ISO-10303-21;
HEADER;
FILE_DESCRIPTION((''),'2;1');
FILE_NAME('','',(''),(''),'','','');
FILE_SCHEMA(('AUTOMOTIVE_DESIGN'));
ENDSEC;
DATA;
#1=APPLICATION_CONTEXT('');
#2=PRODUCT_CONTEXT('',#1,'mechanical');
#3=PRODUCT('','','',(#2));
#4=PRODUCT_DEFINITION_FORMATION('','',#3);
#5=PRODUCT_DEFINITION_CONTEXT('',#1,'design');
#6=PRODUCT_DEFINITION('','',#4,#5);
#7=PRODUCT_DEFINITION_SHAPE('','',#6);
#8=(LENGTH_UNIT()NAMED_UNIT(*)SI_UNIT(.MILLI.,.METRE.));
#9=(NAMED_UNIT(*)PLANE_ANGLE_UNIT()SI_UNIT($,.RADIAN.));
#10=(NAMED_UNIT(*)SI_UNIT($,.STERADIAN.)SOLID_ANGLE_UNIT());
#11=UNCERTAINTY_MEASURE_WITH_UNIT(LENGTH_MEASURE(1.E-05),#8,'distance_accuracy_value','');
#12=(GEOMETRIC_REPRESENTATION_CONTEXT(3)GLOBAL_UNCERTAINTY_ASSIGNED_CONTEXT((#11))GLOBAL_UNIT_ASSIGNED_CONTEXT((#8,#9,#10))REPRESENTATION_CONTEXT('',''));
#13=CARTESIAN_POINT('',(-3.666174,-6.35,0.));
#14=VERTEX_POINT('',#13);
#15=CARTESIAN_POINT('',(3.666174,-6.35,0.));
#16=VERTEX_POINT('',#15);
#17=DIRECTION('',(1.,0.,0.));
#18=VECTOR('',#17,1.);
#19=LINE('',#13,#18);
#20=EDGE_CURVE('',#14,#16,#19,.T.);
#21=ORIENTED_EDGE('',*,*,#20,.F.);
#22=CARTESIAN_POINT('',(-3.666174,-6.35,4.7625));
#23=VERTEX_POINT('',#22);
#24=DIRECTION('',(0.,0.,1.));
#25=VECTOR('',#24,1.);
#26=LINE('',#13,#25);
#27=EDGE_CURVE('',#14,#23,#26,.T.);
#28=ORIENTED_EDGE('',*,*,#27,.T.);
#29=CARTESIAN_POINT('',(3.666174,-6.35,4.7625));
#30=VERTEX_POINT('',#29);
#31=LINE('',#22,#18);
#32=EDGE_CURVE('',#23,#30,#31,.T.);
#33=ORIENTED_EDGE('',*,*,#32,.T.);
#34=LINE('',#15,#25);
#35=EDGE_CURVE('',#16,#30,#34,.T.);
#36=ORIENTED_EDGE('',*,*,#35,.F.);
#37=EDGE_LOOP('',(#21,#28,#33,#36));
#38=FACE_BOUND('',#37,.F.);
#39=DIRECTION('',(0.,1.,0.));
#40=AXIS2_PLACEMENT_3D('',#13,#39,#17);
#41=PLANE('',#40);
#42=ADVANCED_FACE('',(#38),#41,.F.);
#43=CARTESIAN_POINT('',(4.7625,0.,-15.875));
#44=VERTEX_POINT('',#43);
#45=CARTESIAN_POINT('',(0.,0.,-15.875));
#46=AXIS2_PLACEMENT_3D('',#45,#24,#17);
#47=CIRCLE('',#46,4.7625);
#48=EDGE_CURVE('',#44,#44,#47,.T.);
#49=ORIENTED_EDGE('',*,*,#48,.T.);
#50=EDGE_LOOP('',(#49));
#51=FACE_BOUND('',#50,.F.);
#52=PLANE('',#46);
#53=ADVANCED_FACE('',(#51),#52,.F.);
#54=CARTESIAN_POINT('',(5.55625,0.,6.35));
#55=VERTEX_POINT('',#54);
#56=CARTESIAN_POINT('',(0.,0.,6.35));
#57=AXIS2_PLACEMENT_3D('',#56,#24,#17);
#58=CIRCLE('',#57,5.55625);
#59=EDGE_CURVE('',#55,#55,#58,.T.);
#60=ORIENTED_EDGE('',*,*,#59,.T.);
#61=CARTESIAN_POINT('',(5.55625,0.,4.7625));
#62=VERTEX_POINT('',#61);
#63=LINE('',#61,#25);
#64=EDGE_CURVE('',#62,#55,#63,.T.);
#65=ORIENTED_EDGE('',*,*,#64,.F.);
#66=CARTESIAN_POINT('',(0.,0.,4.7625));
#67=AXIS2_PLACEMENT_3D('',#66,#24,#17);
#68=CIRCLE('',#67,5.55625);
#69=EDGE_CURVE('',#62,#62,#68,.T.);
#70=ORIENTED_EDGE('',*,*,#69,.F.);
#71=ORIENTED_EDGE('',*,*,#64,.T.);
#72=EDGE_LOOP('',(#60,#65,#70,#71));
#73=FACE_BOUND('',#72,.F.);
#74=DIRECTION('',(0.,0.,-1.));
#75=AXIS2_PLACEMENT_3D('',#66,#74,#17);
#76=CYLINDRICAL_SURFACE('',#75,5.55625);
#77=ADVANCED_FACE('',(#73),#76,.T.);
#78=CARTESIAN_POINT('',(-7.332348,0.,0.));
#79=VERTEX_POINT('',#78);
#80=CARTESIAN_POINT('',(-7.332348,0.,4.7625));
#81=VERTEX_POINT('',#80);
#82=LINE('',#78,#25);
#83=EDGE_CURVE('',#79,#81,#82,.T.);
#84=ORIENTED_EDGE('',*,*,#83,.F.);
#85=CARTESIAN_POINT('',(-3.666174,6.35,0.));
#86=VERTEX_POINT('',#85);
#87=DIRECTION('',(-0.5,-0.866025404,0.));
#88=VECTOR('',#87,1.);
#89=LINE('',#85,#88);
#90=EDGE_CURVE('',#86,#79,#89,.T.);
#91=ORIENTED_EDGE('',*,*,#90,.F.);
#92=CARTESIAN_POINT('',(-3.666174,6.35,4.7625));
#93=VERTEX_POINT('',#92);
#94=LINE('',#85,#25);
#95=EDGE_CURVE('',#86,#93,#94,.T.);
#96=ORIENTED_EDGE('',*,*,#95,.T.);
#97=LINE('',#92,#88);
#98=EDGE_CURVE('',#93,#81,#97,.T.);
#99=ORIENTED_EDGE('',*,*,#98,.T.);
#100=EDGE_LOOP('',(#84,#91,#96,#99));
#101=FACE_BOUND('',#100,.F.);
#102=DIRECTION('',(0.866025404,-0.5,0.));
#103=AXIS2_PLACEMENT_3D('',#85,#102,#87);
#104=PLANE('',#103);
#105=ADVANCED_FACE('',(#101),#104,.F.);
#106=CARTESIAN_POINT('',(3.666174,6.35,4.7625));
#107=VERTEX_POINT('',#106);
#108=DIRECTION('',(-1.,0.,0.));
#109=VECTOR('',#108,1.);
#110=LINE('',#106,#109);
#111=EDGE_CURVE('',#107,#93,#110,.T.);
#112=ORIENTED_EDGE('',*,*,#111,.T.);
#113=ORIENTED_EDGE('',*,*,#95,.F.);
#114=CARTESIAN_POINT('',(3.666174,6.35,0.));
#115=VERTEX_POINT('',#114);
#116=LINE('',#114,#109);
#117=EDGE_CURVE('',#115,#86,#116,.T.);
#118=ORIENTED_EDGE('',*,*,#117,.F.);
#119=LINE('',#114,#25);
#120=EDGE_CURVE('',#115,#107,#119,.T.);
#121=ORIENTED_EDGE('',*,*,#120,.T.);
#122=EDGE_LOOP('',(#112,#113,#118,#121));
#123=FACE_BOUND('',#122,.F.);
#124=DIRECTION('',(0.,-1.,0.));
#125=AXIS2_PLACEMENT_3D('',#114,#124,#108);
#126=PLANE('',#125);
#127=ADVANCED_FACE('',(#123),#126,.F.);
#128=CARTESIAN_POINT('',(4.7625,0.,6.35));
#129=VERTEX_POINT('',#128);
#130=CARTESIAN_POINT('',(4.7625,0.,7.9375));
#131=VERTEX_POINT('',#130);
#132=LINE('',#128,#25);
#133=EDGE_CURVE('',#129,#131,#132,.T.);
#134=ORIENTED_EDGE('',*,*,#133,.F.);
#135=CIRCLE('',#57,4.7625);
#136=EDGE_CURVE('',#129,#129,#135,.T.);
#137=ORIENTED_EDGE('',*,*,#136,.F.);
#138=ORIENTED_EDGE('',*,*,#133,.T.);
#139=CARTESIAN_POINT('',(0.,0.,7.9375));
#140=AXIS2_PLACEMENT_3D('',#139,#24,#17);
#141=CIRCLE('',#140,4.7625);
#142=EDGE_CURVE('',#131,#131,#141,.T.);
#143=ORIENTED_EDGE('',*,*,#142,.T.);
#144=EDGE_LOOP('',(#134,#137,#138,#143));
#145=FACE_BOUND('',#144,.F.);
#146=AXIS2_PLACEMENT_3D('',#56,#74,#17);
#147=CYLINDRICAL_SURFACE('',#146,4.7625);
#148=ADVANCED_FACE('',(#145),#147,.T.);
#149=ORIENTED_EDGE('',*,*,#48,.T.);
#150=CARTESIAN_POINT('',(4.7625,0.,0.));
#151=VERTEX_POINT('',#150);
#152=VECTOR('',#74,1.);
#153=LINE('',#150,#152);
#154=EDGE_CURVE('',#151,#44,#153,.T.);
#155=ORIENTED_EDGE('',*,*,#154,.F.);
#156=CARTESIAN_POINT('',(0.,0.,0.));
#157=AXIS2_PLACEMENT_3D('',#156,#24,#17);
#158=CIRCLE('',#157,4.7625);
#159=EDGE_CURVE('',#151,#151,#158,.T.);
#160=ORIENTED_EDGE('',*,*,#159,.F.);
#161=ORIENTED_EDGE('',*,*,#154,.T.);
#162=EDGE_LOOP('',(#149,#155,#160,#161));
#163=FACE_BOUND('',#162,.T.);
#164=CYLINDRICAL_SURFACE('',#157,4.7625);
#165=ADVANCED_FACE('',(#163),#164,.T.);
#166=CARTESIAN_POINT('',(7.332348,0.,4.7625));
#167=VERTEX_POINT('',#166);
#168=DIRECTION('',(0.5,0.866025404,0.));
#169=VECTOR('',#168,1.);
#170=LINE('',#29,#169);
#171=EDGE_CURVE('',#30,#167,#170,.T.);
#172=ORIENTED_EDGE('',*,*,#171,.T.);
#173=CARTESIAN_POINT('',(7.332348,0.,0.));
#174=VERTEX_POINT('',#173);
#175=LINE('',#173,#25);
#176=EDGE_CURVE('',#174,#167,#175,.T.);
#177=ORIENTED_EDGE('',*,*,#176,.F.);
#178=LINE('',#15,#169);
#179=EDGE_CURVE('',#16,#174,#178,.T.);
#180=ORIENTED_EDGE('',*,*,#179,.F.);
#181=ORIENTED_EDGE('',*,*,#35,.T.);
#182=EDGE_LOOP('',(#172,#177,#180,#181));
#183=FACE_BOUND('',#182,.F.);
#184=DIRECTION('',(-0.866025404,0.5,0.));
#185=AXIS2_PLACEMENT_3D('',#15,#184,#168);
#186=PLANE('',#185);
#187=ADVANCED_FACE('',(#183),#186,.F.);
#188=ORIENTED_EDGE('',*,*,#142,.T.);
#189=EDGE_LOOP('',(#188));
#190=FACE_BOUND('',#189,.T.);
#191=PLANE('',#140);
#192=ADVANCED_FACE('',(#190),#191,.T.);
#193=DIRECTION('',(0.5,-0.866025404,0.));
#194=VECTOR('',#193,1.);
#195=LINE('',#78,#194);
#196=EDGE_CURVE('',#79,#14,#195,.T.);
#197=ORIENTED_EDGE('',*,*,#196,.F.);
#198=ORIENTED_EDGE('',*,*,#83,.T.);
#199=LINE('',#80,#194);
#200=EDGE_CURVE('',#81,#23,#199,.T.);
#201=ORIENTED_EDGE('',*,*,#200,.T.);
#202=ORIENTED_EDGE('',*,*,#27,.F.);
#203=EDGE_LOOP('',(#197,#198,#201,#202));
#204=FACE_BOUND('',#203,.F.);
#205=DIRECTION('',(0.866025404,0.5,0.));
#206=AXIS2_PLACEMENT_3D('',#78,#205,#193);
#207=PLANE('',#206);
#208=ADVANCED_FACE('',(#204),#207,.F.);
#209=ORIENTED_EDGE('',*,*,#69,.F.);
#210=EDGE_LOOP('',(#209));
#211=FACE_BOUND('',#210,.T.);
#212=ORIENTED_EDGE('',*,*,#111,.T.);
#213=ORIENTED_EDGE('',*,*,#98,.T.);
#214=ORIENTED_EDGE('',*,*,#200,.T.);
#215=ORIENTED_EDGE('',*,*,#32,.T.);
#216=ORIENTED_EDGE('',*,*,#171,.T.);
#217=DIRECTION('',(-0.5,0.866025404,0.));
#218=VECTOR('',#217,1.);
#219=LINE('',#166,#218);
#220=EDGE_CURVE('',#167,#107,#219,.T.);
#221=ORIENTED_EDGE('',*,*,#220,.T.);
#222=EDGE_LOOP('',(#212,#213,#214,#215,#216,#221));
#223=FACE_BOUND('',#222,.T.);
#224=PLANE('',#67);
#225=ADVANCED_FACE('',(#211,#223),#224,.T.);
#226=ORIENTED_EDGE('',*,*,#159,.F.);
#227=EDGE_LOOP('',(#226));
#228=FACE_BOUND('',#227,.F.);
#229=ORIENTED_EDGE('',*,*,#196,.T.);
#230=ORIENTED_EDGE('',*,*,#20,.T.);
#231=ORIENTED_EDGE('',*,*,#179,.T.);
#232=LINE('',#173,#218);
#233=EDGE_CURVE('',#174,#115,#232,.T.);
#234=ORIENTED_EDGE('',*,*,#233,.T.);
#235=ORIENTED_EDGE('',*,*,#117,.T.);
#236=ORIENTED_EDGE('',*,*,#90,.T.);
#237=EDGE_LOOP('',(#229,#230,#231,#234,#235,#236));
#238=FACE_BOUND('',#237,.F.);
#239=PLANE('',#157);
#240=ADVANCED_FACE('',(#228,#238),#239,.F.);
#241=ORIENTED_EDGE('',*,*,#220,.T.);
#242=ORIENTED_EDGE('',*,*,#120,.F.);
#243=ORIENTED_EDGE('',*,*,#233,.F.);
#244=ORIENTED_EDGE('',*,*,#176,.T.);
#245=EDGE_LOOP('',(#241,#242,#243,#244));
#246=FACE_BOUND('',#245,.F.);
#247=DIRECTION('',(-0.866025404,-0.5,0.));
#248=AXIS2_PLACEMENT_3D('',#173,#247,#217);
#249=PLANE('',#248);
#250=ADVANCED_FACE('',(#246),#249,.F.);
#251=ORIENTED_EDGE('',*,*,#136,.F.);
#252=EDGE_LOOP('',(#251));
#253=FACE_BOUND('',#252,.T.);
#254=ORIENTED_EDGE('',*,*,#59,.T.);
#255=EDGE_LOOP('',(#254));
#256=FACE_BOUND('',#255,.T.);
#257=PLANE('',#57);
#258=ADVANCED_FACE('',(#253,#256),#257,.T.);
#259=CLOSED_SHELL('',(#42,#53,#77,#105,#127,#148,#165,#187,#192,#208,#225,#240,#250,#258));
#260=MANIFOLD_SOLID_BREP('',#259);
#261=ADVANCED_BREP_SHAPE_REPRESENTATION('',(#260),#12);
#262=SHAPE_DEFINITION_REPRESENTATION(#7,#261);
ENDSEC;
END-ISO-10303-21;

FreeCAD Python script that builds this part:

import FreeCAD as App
import Part
import Sketcher
from FreeCAD import Vector
Q = App.Units.Quantity

doc = App.newDocument("Part")
body = doc.addObject("PartDesign::Body", "Body")

# Sketch on XY plane
sketch1 = body.newObject("Sketcher::SketchObject", "Sketch")
sketch1.AttachmentSupport = (doc.getObject("XY_Plane"), [""])
sketch1.MapMode = "FlatFace"
sketch1.addGeometry([
    Part.LineSegment(Vector(-3.666174, -6.35, 0), Vector(3.666174, -6.35, 0)),  # 0
    Part.LineSegment(Vector(3.666174, -6.35, 0), Vector(7.332348, 0, 0)),  # 1
    Part.LineSegment(Vector(7.332348, 0, 0), Vector(3.666174, 6.35, 0)),  # 2
    Part.LineSegment(Vector(3.666174, 6.35, 0), Vector(-3.666174, 6.35, 0)),  # 3
    Part.LineSegment(Vector(-3.666174, 6.35, 0), Vector(-7.332348, 0, 0)),  # 4
    Part.LineSegment(Vector(-7.332348, 0, 0), Vector(-3.666174, -6.35, 0)),  # 5
], False)
sketch1.addConstraint([
    Sketcher.Constraint("Coincident", 0, 2, 1, 1),
    Sketcher.Constraint("Coincident", 1, 2, 2, 1),
    Sketcher.Constraint("Coincident", 2, 2, 3, 1),
    Sketcher.Constraint("Coincident", 3, 2, 4, 1),
    Sketcher.Constraint("Coincident", 4, 2, 5, 1),
    Sketcher.Constraint("Coincident", 5, 2, 0, 1),
    Sketcher.Constraint("Horizontal", 0),
    Sketcher.Constraint("Horizontal", 3),
    Sketcher.Constraint("Symmetric", 0, 2, 3, 2, -1, 1),
    Sketcher.Constraint("Symmetric", 1, 2, 4, 2, -1, 1),
    Sketcher.Constraint("PointOnObject", 1, 2, -1),
    Sketcher.Constraint("Parallel", 2, 5),
    Sketcher.Constraint("Vertical", 0, 2, 2, 2),
    Sketcher.Constraint("Angle", 1, Q("60 deg")),
    Sketcher.Constraint("DistanceY", 0, 2, 2, 2, Q("0.5 in")),
    Sketcher.Constraint("DistanceX", 0, 1, 0, 2, 7.332348),
])
pad1 = body.newObject("PartDesign::Pad", "Pad")
pad1.Profile = sketch1
pad1.Length = Q("0.1875 in")

# Sketch on XY plane
sketch2 = body.newObject("Sketcher::SketchObject", "Sketch001")
sketch2.AttachmentSupport = (doc.getObject("XY_Plane"), [""])
sketch2.MapMode = "FlatFace"
sketch2.addGeometry(Part.Circle(Vector(0, 0, 0), Vector(0, 0, 1), 4.7625), False)
sketch2.addConstraint([
    Sketcher.Constraint("Coincident", 0, 3, -1, 1),
    Sketcher.Constraint("Diameter", 0, Q("0.375 in")),
])
pad2 = body.newObject("PartDesign::Pad", "Pad001")
pad2.Profile = sketch2
pad2.Length = Q("0.625 in")
pad2.Reversed = True

# Sketch on XY plane
sketch3 = body.newObject("Sketcher::SketchObject", "Sketch002")
sketch3.AttachmentSupport = (doc.getObject("XY_Plane"), [""])
sketch3.MapMode = "FlatFace"
sketch3.AttachmentOffset = App.Placement(Vector(0, 0, 0.1875 * 25.4), App.Rotation())
sketch3.addGeometry(Part.Circle(Vector(0, 0, 0), Vector(0, 0, 1), 5.55625), False)
sketch3.addConstraint([
    Sketcher.Constraint("Coincident", 0, 3, -1, 1),
    Sketcher.Constraint("Diameter", 0, Q("0.4375 in")),
])
pad3 = body.newObject("PartDesign::Pad", "Pad002")
pad3.Profile = sketch3
pad3.Length = Q("0.0625 in")

# Sketch on XY plane
sketch4 = body.newObject("Sketcher::SketchObject", "Sketch003")
sketch4.AttachmentSupport = (doc.getObject("XY_Plane"), [""])
sketch4.MapMode = "FlatFace"
sketch4.AttachmentOffset = App.Placement(Vector(0, 0, 0.25 * 25.4), App.Rotation())
sketch4.addGeometry(Part.Circle(Vector(0, 0, 0), Vector(0, 0, 1), 4.7625), False)
sketch4.addConstraint([
    Sketcher.Constraint("Coincident", 0, 3, -1, 1),
    Sketcher.Constraint("Diameter", 0, Q("0.375 in")),
])
pad4 = body.newObject("PartDesign::Pad", "Pad003")
pad4.Profile = sketch4
pad4.Length = Q("0.0625 in")

doc.recompute()
